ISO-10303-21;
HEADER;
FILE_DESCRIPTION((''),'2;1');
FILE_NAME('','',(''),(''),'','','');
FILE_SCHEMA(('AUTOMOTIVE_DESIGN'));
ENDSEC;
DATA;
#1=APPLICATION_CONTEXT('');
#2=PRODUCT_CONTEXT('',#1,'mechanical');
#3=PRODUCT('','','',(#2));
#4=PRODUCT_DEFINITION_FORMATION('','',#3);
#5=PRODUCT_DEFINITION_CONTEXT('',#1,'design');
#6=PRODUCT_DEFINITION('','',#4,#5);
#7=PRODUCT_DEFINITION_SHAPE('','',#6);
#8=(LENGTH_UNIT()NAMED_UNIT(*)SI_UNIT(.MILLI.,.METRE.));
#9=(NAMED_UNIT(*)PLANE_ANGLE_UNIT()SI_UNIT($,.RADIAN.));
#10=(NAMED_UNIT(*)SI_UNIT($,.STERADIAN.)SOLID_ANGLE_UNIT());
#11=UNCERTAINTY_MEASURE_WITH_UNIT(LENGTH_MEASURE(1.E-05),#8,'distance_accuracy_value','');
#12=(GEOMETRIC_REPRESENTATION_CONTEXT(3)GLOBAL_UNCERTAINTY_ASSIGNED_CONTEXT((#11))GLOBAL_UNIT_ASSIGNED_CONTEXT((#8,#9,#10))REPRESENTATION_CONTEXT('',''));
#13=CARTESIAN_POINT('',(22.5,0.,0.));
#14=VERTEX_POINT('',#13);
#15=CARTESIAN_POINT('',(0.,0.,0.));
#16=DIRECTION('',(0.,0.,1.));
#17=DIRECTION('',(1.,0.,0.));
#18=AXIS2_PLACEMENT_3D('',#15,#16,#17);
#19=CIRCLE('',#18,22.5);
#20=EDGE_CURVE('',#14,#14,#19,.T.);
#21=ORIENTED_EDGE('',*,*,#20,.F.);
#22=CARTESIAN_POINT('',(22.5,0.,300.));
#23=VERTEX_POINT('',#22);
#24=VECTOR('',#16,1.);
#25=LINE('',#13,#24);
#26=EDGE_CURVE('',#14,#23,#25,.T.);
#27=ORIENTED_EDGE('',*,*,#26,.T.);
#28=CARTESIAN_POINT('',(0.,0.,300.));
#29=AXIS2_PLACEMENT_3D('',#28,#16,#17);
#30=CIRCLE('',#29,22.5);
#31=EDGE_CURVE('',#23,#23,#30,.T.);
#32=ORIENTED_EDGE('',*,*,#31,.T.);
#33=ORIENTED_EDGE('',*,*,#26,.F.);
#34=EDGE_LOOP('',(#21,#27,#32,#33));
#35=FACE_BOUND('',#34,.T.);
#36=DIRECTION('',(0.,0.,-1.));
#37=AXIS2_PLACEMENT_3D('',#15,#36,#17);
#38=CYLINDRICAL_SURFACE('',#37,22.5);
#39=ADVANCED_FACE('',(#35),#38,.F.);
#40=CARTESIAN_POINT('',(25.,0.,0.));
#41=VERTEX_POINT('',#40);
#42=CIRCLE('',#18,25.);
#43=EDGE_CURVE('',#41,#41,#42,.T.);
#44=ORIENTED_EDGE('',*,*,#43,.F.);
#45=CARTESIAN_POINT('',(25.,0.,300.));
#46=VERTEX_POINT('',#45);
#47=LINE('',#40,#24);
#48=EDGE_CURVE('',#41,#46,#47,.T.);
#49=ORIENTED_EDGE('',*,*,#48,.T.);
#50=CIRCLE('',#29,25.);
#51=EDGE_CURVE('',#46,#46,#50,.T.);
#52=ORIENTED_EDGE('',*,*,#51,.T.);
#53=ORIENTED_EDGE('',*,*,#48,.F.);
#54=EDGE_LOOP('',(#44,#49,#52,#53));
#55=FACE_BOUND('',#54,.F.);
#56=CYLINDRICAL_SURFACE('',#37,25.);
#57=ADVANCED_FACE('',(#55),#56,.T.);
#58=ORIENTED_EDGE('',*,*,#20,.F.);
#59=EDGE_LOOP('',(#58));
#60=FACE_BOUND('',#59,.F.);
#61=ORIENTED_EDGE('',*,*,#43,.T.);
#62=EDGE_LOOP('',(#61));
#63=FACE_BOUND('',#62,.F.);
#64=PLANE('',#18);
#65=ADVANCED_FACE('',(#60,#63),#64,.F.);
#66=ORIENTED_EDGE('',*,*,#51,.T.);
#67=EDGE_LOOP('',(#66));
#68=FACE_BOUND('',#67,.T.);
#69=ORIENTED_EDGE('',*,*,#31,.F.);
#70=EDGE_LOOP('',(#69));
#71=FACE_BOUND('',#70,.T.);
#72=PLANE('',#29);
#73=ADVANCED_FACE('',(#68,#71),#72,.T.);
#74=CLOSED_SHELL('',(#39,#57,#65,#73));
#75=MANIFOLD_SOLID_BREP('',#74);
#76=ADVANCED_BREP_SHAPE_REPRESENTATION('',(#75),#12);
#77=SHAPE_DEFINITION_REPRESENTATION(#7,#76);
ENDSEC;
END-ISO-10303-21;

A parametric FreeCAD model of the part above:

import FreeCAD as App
import Part
import Sketcher
from FreeCAD import Vector

doc = App.newDocument("Part")
body = doc.addObject("PartDesign::Body", "Body")

# Sketch on XY plane
sketch1 = body.newObject("Sketcher::SketchObject", "Sketch")
sketch1.AttachmentSupport = (doc.getObject("XY_Plane"), [""])
sketch1.MapMode = "FlatFace"
sketch1.addGeometry(Part.Circle(Vector(0, 0, 0), Vector(0, 0, 1), 25), False)
sketch1.addGeometry(Part.Circle(Vector(0, 0, 0), Vector(0, 0, 1), 22), False)
sketch1.addConstraint(Sketcher.Constraint("Coincident", 0, 3, -1, 1))
sketch1.addConstraint(Sketcher.Constraint("Coincident", 1, 3, -1, 1))
sketch1.addConstraint(Sketcher.Constraint("Diameter", 0, 50.0))
sketch1.addConstraint(Sketcher.Constraint("Diameter", 1, 45.0))
pad1 = body.newObject("PartDesign::Pad", "Pad")
pad1.Profile = sketch1
pad1.Length = 300

doc.recompute()
